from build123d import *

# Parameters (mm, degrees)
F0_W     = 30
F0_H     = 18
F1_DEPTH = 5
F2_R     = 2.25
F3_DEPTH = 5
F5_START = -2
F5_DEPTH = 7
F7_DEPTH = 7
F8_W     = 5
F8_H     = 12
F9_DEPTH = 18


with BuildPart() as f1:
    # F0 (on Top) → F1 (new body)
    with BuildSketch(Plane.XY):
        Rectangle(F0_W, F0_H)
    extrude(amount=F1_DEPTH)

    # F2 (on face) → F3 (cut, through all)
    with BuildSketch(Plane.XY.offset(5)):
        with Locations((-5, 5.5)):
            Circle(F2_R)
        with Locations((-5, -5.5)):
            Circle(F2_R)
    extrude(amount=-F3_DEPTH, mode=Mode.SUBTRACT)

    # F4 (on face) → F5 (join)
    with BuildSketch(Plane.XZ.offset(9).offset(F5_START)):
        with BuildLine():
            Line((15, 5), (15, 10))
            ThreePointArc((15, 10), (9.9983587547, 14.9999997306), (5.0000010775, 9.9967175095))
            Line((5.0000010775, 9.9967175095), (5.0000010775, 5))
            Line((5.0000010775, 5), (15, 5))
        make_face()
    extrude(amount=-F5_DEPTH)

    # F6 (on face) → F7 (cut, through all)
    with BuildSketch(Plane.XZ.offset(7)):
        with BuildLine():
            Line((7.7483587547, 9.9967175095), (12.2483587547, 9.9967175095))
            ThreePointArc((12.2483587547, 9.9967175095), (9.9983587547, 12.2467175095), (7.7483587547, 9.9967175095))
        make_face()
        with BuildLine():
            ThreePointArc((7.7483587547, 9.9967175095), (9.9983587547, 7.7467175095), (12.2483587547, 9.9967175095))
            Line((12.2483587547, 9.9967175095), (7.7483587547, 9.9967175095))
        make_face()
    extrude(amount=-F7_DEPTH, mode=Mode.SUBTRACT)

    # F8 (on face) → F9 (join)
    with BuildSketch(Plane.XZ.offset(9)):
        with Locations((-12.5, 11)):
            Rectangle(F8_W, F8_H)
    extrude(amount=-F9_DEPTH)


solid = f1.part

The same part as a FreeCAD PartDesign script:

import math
import FreeCAD as App
import Part
import Sketcher
from FreeCAD import Vector


def add_polygon(sketch, points):
    """Adds a closed chain of lines whose ends are joined by coincident constraints."""
    first, n = sketch.GeometryCount, len(points)
    for a, b in zip(points, points[1:] + points[:1]):
        sketch.addGeometry(Part.LineSegment(App.Vector(*a, 0), App.Vector(*b, 0)), False)
    for i in range(n):
        sketch.addConstraint(Sketcher.Constraint("Coincident", first + i, 2, first + (i + 1) % n, 1))

doc = App.newDocument("Part")
body = doc.addObject("PartDesign::Body", "Body")

# Sketch on XY plane
sketch1 = body.newObject("Sketcher::SketchObject", "Sketch")
sketch1.AttachmentSupport = (doc.getObject("XY_Plane"), [""])
sketch1.MapMode = "FlatFace"
add_polygon(sketch1, [(-15, 9), (-15, -9), (15, -9), (15, 9)])  # lines 0-3
sketch1.addConstraint(Sketcher.Constraint("Vertical", 0))
sketch1.addConstraint(Sketcher.Constraint("Horizontal", 1))
sketch1.addConstraint(Sketcher.Constraint("Vertical", 2))
sketch1.addConstraint(Sketcher.Constraint("Horizontal", 3))
sketch1.addConstraint(Sketcher.Constraint("Symmetric", 0, 2, 2, 2, -1, 1))
sketch1.addConstraint(Sketcher.Constraint("DistanceX", 1, 1, 1, 2, 30.0))
sketch1.addConstraint(Sketcher.Constraint("DistanceY", 0, 2, 0, 1, 18.0))
pad1 = body.newObject("PartDesign::Pad", "Pad")
pad1.Profile = sketch1
pad1.Length = 5

# Sketch on XY plane
sketch2 = body.newObject("Sketcher::SketchObject", "Sketch001")
sketch2.AttachmentSupport = (doc.getObject("XY_Plane"), [""])
sketch2.MapMode = "FlatFace"
sketch2.AttachmentOffset = App.Placement(Vector(0, 0, 5), App.Rotation())
sketch2.addGeometry(Part.Circle(Vector(-5, 5.5, 0), Vector(0, 0, 1), 2.2), False)
sketch2.addGeometry(Part.Circle(Vector(-5, -5.5, 0), Vector(0, 0, 1), 2.2), False)
sketch2.addConstraint(Sketcher.Constraint("Equal", 0, 1))
sketch2.addConstraint(Sketcher.Constraint("Symmetric", 0, 3, 1, 3, -1))
sketch2.addConstraint(Sketcher.Constraint("Diameter", 0, 4.5))
sketch2.addConstraint(Sketcher.Constraint("DistanceX", 0, 3, -1, 1, 5.0))
sketch2.addConstraint(Sketcher.Constraint("DistanceY", 1, 3, 0, 3, 11.0))
pocket1 = body.newObject("PartDesign::Pocket", "Pocket")
pocket1.Profile = sketch2
pocket1.Type = "ThroughAll"

# Sketch on XZ plane
sketch3 = body.newObject("Sketcher::SketchObject", "Sketch002")
sketch3.AttachmentSupport = (doc.getObject("XZ_Plane"), [""])
sketch3.MapMode = "FlatFace"
sketch3.AttachmentOffset = App.Placement(Vector(0, 0, 7), App.Rotation())
sketch3.addGeometry(Part.LineSegment(Vector(15, 5, 0), Vector(15, 10, 0)), False)
sketch3.addGeometry(Part.ArcOfCircle(Part.Circle(Vector(10, 10, 0), Vector(0, 0, 1), 5), math.radians(0), math.radians(180)), False)
sketch3.addGeometry(Part.LineSegment(Vector(5, 10, 0), Vector(5, 5, 0)), False)
sketch3.addGeometry(Part.LineSegment(Vector(5, 5, 0), Vector(15, 5, 0)), False)
sketch3.addConstraint(Sketcher.Constraint("Tangent", 0, 2, 1, 1))
sketch3.addConstraint(Sketcher.Constraint("Coincident", 1, 2, 2, 1))
sketch3.addConstraint(Sketcher.Constraint("Coincident", 2, 2, 3, 1))
sketch3.addConstraint(Sketcher.Constraint("Coincident", 3, 2, 0, 1))
sketch3.addConstraint(Sketcher.Constraint("Vertical", 0))
sketch3.addConstraint(Sketcher.Constraint("Vertical", 2))
sketch3.addConstraint(Sketcher.Constraint("Horizontal", 3))
sketch3.addConstraint(Sketcher.Constraint("Radius", 1, 5.0))
sketch3.addConstraint(Sketcher.Constraint("DistanceY", 0, 1, 0, 2, 5.0))
sketch3.addConstraint(Sketcher.Constraint("DistanceX", -1, 1, 1, 3, 10.0))
sketch3.addConstraint(Sketcher.Constraint("DistanceY", -1, 1, 1, 3, 10.0))
sketch3.addConstraint(Sketcher.Constraint("DistanceY", 2, 2, 2, 1, 4.996718))
pad2 = body.newObject("PartDesign::Pad", "Pad001")
pad2.Profile = sketch3
pad2.Length = 7
pad2.Reversed = True

# Sketch on XZ plane
sketch4 = body.newObject("Sketcher::SketchObject", "Sketch003")
sketch4.AttachmentSupport = (doc.getObject("XZ_Plane"), [""])
sketch4.MapMode = "FlatFace"
sketch4.AttachmentOffset = App.Placement(Vector(0, 0, 7), App.Rotation())
sketch4.addGeometry(Part.Circle(Vector(10, 10, 0), Vector(0, 0, 1), 2.2), False)
sketch4.addConstraint(Sketcher.Constraint("Diameter", 0, 4.5))
sketch4.addConstraint(Sketcher.Constraint("DistanceX", -1, 1, 0, 3, 9.998359))
sketch4.addConstraint(Sketcher.Constraint("DistanceY", -1, 1, 0, 3, 9.996718))
pocket2 = body.newObject("PartDesign::Pocket", "Pocket001")
pocket2.Profile = sketch4
pocket2.Type = "ThroughAll"

# Sketch on XZ plane
sketch5 = body.newObject("Sketcher::SketchObject", "Sketch004")
sketch5.AttachmentSupport = (doc.getObject("XZ_Plane"), [""])
sketch5.MapMode = "FlatFace"
sketch5.AttachmentOffset = App.Placement(Vector(0, 0, 9), App.Rotation())
add_polygon(sketch5, [(-15, 17), (-15, 5), (-10, 5), (-10, 17)])  # lines 0-3
sketch5.addConstraint(Sketcher.Constraint("Vertical", 0))
sketch5.addConstraint(Sketcher.Constraint("Horizontal", 1))
sketch5.addConstraint(Sketcher.Constraint("Vertical", 2))
sketch5.addConstraint(Sketcher.Constraint("Horizontal", 3))
sketch5.addConstraint(Sketcher.Constraint("DistanceX", 1, 1, 1, 2, 5.0))
sketch5.addConstraint(Sketcher.Constraint("DistanceY", 0, 2, 0, 1, 12.0))
sketch5.addConstraint(Sketcher.Constraint("DistanceX", 0, 2, -1, 1, 15.0))
sketch5.addConstraint(Sketcher.Constraint("DistanceY", -1, 1, 0, 2, 5.0))
pad3 = body.newObject("PartDesign::Pad", "Pad002")
pad3.Profile = sketch5
pad3.Length = 18
pad3.Reversed = True

doc.recompute()
